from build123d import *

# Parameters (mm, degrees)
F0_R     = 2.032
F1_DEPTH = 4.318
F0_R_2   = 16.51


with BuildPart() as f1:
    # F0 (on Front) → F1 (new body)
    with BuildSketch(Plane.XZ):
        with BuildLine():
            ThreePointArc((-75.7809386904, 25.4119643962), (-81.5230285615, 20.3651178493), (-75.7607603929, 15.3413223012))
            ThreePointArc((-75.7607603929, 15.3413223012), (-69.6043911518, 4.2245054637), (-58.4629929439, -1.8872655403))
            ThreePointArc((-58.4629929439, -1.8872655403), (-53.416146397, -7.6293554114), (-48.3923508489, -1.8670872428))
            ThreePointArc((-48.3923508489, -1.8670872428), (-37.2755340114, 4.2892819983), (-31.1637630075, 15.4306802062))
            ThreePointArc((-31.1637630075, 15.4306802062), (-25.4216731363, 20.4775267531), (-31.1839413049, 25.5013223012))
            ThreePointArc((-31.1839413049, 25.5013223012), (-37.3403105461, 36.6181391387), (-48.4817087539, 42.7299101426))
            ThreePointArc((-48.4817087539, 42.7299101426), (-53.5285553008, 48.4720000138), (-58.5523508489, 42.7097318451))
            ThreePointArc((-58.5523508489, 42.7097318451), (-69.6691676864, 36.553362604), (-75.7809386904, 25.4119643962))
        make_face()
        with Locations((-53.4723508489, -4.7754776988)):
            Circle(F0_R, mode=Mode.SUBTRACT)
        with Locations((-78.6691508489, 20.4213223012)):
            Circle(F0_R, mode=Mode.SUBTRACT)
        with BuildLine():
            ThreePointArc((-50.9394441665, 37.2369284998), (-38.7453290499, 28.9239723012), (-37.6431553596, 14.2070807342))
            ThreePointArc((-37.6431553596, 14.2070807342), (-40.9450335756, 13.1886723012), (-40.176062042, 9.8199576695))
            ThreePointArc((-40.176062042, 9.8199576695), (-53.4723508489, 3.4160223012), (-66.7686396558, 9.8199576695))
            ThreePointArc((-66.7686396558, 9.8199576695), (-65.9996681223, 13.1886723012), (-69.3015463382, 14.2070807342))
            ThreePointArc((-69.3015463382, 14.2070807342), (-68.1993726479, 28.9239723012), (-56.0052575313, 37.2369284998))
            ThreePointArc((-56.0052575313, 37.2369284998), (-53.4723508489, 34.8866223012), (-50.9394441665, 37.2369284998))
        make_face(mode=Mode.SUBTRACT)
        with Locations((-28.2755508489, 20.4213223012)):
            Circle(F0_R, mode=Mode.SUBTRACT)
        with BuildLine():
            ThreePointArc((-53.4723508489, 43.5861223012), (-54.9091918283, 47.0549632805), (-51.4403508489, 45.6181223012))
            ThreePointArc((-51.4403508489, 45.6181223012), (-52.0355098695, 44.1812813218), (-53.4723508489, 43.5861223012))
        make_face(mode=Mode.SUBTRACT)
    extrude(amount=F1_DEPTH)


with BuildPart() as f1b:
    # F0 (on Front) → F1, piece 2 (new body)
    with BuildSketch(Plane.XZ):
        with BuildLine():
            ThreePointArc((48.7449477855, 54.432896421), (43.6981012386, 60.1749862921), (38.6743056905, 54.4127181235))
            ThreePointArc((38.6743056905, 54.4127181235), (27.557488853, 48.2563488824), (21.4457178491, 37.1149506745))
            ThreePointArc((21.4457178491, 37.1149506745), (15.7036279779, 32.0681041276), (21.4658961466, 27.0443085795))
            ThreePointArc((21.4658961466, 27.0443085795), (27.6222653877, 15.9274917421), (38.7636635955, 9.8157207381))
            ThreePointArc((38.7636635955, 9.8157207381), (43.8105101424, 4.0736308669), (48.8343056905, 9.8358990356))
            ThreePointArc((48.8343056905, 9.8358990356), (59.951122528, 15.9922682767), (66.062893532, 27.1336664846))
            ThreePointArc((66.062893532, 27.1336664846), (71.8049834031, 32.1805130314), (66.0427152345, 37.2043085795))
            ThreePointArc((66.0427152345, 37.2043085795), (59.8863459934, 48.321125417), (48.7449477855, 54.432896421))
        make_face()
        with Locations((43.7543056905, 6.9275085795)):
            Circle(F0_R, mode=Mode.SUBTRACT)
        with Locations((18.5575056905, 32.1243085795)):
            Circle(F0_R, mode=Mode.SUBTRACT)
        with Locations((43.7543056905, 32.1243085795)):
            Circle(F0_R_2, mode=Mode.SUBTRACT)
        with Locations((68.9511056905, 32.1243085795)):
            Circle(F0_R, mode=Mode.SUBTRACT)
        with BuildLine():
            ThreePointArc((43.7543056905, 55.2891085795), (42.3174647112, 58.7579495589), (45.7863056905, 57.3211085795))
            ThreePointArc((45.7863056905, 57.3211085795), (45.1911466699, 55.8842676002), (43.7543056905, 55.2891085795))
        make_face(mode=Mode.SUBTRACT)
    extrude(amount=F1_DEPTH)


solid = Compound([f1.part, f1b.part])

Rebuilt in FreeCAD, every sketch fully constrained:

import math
import FreeCAD as App
import Part
import Sketcher
from FreeCAD import Vector
Q = App.Units.Quantity

doc = App.newDocument("Part")
body = doc.addObject("PartDesign::Body", "Body")

sketch1 = body.newObject("Sketcher::SketchObject", "Sketch")
sketch1.AttachmentSupport = (doc.getObject("XZ_Plane"), [""])
sketch1.MapMode = "FlatFace"
sketch1.addGeometry([
    Part.ArcOfCircle(Part.Circle(Vector(-76.443039, 20.375297, 0), Vector(0, 0, 1), 5.08), math.radians(82.511069), math.radians(277.718535)),
    Part.ArcOfCircle(Part.Circle(Vector(-53.472351, 20.421322, 0), Vector(0, 0, 1), 22.86), math.radians(-167.160412), math.radians(-102.609984)),
    Part.ArcOfCircle(Part.Circle(Vector(-53.426325, -2.549366, 0), Vector(0, 0, 1), 5.08), math.radians(172.511069), math.radians(367.718535)),
    Part.ArcOfCircle(Part.Circle(Vector(-53.472351, 20.421322, 0), Vector(0, 0, 1), 22.86), math.radians(-77.160412), math.radians(-12.609984)),
    Part.ArcOfCircle(Part.Circle(Vector(-30.501663, 20.467348, 0), Vector(0, 0, 1), 5.08), math.radians(-97.488931), math.radians(97.718535)),
    Part.ArcOfCircle(Part.Circle(Vector(-53.472351, 20.421322, 0), Vector(0, 0, 1), 22.86), math.radians(12.839588), math.radians(77.390016)),
    Part.ArcOfCircle(Part.Circle(Vector(-53.518377, 43.39201, 0), Vector(0, 0, 1), 5.08), math.radians(-7.488931), math.radians(187.718535)),
    Part.ArcOfCircle(Part.Circle(Vector(-53.472351, 20.421322, 0), Vector(0, 0, 1), 22.86), math.radians(102.839588), math.radians(167.390016)),
    Part.Circle(Vector(-53.472351, -4.775478, 0), Vector(0, 0, 1), 2.032),
    Part.ArcOfCircle(Part.Circle(Vector(-53.472351, 37.426622, 0), Vector(0, 0, 1), 2.54), math.radians(-175.717015), math.radians(-4.282985)),
    Part.ArcOfCircle(Part.Circle(Vector(-53.472351, 20.421322, 0), Vector(0, 0, 1), 17.0053), math.radians(-21.434029), math.radians(81.434029)),
    Part.ArcOfCircle(Part.Circle(Vector(-38.745329, 11.918672, 0), Vector(0, 0, 1), 2.54), math.radians(64.282985), math.radians(235.717015)),
    Part.ArcOfCircle(Part.Circle(Vector(-53.472351, 20.421322, 0), Vector(0, 0, 1), 17.0053), math.radians(-141.434029), math.radians(-38.565971)),
    Part.ArcOfCircle(Part.Circle(Vector(-68.199373, 11.918672, 0), Vector(0, 0, 1), 2.54), math.radians(-55.717015), math.radians(115.717015)),
    Part.ArcOfCircle(Part.Circle(Vector(-53.472351, 20.421322, 0), Vector(0, 0, 1), 17.0053), math.radians(98.565971), math.radians(201.434029)),
    Part.Circle(Vector(-78.669151, 20.421322, 0), Vector(0, 0, 1), 2.032),
    Part.Circle(Vector(-28.275551, 20.421322, 0), Vector(0, 0, 1), 2.032),
    Part.ArcOfCircle(Part.Circle(Vector(-53.472351, 45.618122, 0), Vector(0, 0, 1), 2.032), math.radians(-90), math.radians(0)),
    Part.ArcOfCircle(Part.Circle(Vector(-53.472351, 45.618122, 0), Vector(0, 0, 1), 2.032), math.radians(0), math.radians(270)),
], False)
sketch1.addConstraint([
    Sketcher.Constraint("Coincident", 0, 2, 1, 1),
    Sketcher.Constraint("Coincident", 1, 2, 2, 1),
    Sketcher.Constraint("Coincident", 2, 2, 3, 1),
    Sketcher.Constraint("Coincident", 3, 2, 4, 1),
    Sketcher.Constraint("Coincident", 4, 2, 5, 1),
    Sketcher.Constraint("Coincident", 5, 2, 6, 1),
    Sketcher.Constraint("Coincident", 6, 2, 7, 1),
    Sketcher.Constraint("Coincident", 7, 2, 0, 1),
    Sketcher.Constraint("Coincident", 9, 2, 10, 2),
    Sketcher.Constraint("Coincident", 10, 1, 11, 1),
    Sketcher.Constraint("Coincident", 11, 2, 12, 2),
    Sketcher.Constraint("Coincident", 12, 1, 13, 1),
    Sketcher.Constraint("Coincident", 13, 2, 14, 2),
    Sketcher.Constraint("Coincident", 14, 1, 9, 1),
    Sketcher.Constraint("Tangent", 17, 1, 18, 2),
    Sketcher.Constraint("Coincident", 18, 1, 17, 2),
    Sketcher.Constraint("Coincident", 3, 3, 1, 3),
    Sketcher.Constraint("Coincident", 5, 3, 1, 3),
    Sketcher.Constraint("Coincident", 7, 3, 1, 3),
    Sketcher.Constraint("Coincident", 10, 3, 1, 3),
    Sketcher.Constraint("Coincident", 12, 3, 1, 3),
    Sketcher.Constraint("Coincident", 14, 3, 1, 3),
    Sketcher.Constraint("Equal", 0, 2),
    Sketcher.Constraint("Equal", 1, 3),
    Sketcher.Constraint("Equal", 2, 4),
    Sketcher.Constraint("Equal", 3, 5),
    Sketcher.Constraint("Equal", 4, 6),
    Sketcher.Constraint("Equal", 5, 7),
    Sketcher.Constraint("Equal", 9, 11),
    Sketcher.Constraint("Equal", 10, 12),
    Sketcher.Constraint("Equal", 11, 13),
    Sketcher.Constraint("Equal", 12, 14),
    Sketcher.Constraint("Equal", 8, 15),
    Sketcher.Constraint("Equal", 15, 16),
    Sketcher.Constraint("Equal", 16, 17),
    Sketcher.Constraint("Horizontal", 11, 3, 13, 3),
    Sketcher.Constraint("Horizontal", 14, 3, 15, 3),
    Sketcher.Constraint("Horizontal", 15, 3, 16, 3),
    Sketcher.Constraint("Horizontal", 11, 2, 12, 1),
    Sketcher.Constraint("Horizontal", 9, 2, 14, 1),
    Sketcher.Constraint("Horizontal", 17, 3, 18, 1),
    Sketcher.Constraint("Vertical", 7, 3, 8, 3),
    Sketcher.Constraint("Vertical", 14, 3, 17, 3),
    Sketcher.Constraint("Vertical", 18, 3, 17, 1),
    Sketcher.Constraint("Radius", 0, Q("0.2 in")),
    Sketcher.Constraint("Radius", 1, Q("0.9 in")),
    Sketcher.Constraint("Radius", 9, Q("0.1 in")),
    Sketcher.Constraint("Diameter", 8, Q("0.16 in")),
    Sketcher.Constraint("Radius", 10, Q("0.6695 in")),
    Sketcher.Constraint("DistanceY", 0, 2, 15, 3, Q("0.2 in")),
    Sketcher.Constraint("DistanceX", 8, 3, 2, 2, Q("0.2 in")),
    Sketcher.Constraint("DistanceY", 16, 3, 4, 2, Q("0.2 in")),
    Sketcher.Constraint("DistanceX", 6, 2, 17, 3, Q("0.2 in")),
    Sketcher.Constraint("DistanceY", 8, 3, 1, 3, Q("0.992 in")),
    Sketcher.Constraint("DistanceX", 15, 3, 1, 3, Q("0.992 in")),
    Sketcher.Constraint("DistanceX", 1, 3, 16, 3, Q("0.992 in")),
    Sketcher.Constraint("DistanceY", 1, 3, 17, 3, Q("0.992 in")),
    Sketcher.Constraint("DistanceY", 1, 3, 9, 3, Q("0.6695 in")),
    Sketcher.Constraint("DistanceY", 2, 3, 1, 2, Q("0.6621 mm")),
    Sketcher.Constraint("DistanceX", 3, 2, 4, 3, Q("0.6621 mm")),
    Sketcher.Constraint("DistanceY", 5, 2, 6, 3, Q("0.6621 mm")),
    Sketcher.Constraint("DistanceX", 0, 3, 7, 2, Q("0.6621 mm")),
    Sketcher.Constraint("DistanceY", 10, 1, 3, 2, Q("1.223599 mm")),
    Sketcher.Constraint("DistanceX", 11, 2, 3, 2, Q("9.012299 mm")),
    Sketcher.Constraint("DistanceX", 0, 3, -1, 1, Q("76.443039 mm")),
    Sketcher.Constraint("DistanceY", -1, 1, 4, 3, Q("20.467348 mm")),
])
pad1 = body.newObject("PartDesign::Pad", "Pad")
pad1.Profile = sketch1
pad1.Length = Q("0.17 in")
body2 = doc.addObject("PartDesign::Body", "Body001")

sketch2 = body2.newObject("Sketcher::SketchObject", "Sketch001")
sketch2.AttachmentSupport = (doc.getObject("XZ_Plane001"), [""])
sketch2.MapMode = "FlatFace"
sketch2.addGeometry([
    Part.ArcOfCircle(Part.Circle(Vector(43.70828, 55.094996, 0), Vector(0, 0, 1), 5.08), math.radians(-7.488931), math.radians(187.718535)),
    Part.ArcOfCircle(Part.Circle(Vector(43.754306, 32.124309, 0), Vector(0, 0, 1), 22.86), math.radians(102.839588), math.radians(167.390016)),
    Part.ArcOfCircle(Part.Circle(Vector(20.783618, 32.078283, 0), Vector(0, 0, 1), 5.08), math.radians(82.511069), math.radians(277.718535)),
    Part.ArcOfCircle(Part.Circle(Vector(43.754306, 32.124309, 0), Vector(0, 0, 1), 22.86), math.radians(-167.160412), math.radians(-102.609984)),
    Part.ArcOfCircle(Part.Circle(Vector(43.800331, 9.153621, 0), Vector(0, 0, 1), 5.08), math.radians(172.511069), math.radians(367.718535)),
    Part.ArcOfCircle(Part.Circle(Vector(43.754306, 32.124309, 0), Vector(0, 0, 1), 22.86), math.radians(-77.160412), math.radians(-12.609984)),
    Part.ArcOfCircle(Part.Circle(Vector(66.724994, 32.170334, 0), Vector(0, 0, 1), 5.08), math.radians(-97.488931), math.radians(97.718535)),
    Part.ArcOfCircle(Part.Circle(Vector(43.754306, 32.124309, 0), Vector(0, 0, 1), 22.86), math.radians(12.839588), math.radians(77.390016)),
    Part.Circle(Vector(43.754306, 6.927509, 0), Vector(0, 0, 1), 2.032),
    Part.Circle(Vector(18.557506, 32.124309, 0), Vector(0, 0, 1), 2.032),
    Part.Circle(Vector(43.754306, 32.124309, 0), Vector(0, 0, 1), 16.51),
    Part.Circle(Vector(68.951106, 32.124309, 0), Vector(0, 0, 1), 2.032),
    Part.ArcOfCircle(Part.Circle(Vector(43.754306, 57.321109, 0), Vector(0, 0, 1), 2.032), math.radians(-90), math.radians(0)),
    Part.ArcOfCircle(Part.Circle(Vector(43.754306, 57.321109, 0), Vector(0, 0, 1), 2.032), math.radians(0), math.radians(270)),
], False)
sketch2.addConstraint([
    Sketcher.Constraint("Coincident", 0, 2, 1, 1),
    Sketcher.Constraint("Coincident", 1, 2, 2, 1),
    Sketcher.Constraint("Coincident", 2, 2, 3, 1),
    Sketcher.Constraint("Coincident", 3, 2, 4, 1),
    Sketcher.Constraint("Coincident", 4, 2, 5, 1),
    Sketcher.Constraint("Coincident", 5, 2, 6, 1),
    Sketcher.Constraint("Coincident", 6, 2, 7, 1),
    Sketcher.Constraint("Coincident", 7, 2, 0, 1),
    Sketcher.Constraint("Tangent", 12, 1, 13, 2),
    Sketcher.Constraint("Coincident", 13, 1, 12, 2),
    Sketcher.Constraint("Coincident", 3, 3, 1, 3),
    Sketcher.Constraint("Coincident", 5, 3, 1, 3),
    Sketcher.Constraint("Coincident", 7, 3, 1, 3),
    Sketcher.Constraint("Coincident", 10, 3, 1, 3),
    Sketcher.Constraint("Equal", 0, 2),
    Sketcher.Constraint("Equal", 1, 3),
    Sketcher.Constraint("Equal", 2, 4),
    Sketcher.Constraint("Equal", 3, 5),
    Sketcher.Constraint("Equal", 4, 6),
    Sketcher.Constraint("Equal", 5, 7),
    Sketcher.Constraint("Equal", 8, 9),
    Sketcher.Constraint("Equal", 9, 11),
    Sketcher.Constraint("Equal", 11, 12),
    Sketcher.Constraint("Horizontal", 7, 3, 9, 3),
    Sketcher.Constraint("Horizontal", 10, 3, 11, 3),
    Sketcher.Constraint("Horizontal", 12, 3, 13, 1),
    Sketcher.Constraint("Vertical", 7, 3, 8, 3),
    Sketcher.Constraint("Vertical", 10, 3, 12, 3),
    Sketcher.Constraint("Vertical", 13, 3, 12, 1),
    Sketcher.Constraint("Diameter", 10, Q("1.3 in")),
    Sketcher.Constraint("Radius", 0, Q("0.2 in")),
    Sketcher.Constraint("Radius", 1, Q("0.9 in")),
    Sketcher.Constraint("Diameter", 8, Q("0.16 in")),
    Sketcher.Constraint("DistanceX", 0, 2, 12, 3, Q("0.2 in")),
    Sketcher.Constraint("DistanceY", 2, 2, 9, 3, Q("0.2 in")),
    Sketcher.Constraint("DistanceX", 8, 3, 4, 2, Q("0.2 in")),
    Sketcher.Constraint("DistanceY", 11, 3, 6, 2, Q("0.2 in")),
    Sketcher.Constraint("DistanceY", 8, 3, 1, 3, Q("0.992 in")),
    Sketcher.Constraint("DistanceX", 9, 3, 1, 3, Q("0.992 in")),
    Sketcher.Constraint("DistanceX", 3, 3, 11, 3, Q("0.992 in")),
    Sketcher.Constraint("DistanceY", 1, 3, 12, 3, Q("0.992 in")),
    Sketcher.Constraint("DistanceY", -1, 1, 4, 2, Q("9.835899 mm")),
    Sketcher.Constraint("DistanceX", 2, 3, 1, 2, Q("0.6621 mm")),
    Sketcher.Constraint("DistanceY", 4, 3, 3, 2, Q("0.6621 mm")),
    Sketcher.Constraint("DistanceX", 5, 2, 6, 3, Q("0.6621 mm")),
    Sketcher.Constraint("DistanceY", 7, 2, 0, 3, Q("0.6621 mm")),
    Sketcher.Constraint("DistanceX", -1, 1, 0, 3, Q("43.70828 mm")),
])
pad2 = body2.newObject("PartDesign::Pad", "Pad001")
pad2.Profile = sketch2
pad2.Length = Q("0.17 in")

doc.recompute()
